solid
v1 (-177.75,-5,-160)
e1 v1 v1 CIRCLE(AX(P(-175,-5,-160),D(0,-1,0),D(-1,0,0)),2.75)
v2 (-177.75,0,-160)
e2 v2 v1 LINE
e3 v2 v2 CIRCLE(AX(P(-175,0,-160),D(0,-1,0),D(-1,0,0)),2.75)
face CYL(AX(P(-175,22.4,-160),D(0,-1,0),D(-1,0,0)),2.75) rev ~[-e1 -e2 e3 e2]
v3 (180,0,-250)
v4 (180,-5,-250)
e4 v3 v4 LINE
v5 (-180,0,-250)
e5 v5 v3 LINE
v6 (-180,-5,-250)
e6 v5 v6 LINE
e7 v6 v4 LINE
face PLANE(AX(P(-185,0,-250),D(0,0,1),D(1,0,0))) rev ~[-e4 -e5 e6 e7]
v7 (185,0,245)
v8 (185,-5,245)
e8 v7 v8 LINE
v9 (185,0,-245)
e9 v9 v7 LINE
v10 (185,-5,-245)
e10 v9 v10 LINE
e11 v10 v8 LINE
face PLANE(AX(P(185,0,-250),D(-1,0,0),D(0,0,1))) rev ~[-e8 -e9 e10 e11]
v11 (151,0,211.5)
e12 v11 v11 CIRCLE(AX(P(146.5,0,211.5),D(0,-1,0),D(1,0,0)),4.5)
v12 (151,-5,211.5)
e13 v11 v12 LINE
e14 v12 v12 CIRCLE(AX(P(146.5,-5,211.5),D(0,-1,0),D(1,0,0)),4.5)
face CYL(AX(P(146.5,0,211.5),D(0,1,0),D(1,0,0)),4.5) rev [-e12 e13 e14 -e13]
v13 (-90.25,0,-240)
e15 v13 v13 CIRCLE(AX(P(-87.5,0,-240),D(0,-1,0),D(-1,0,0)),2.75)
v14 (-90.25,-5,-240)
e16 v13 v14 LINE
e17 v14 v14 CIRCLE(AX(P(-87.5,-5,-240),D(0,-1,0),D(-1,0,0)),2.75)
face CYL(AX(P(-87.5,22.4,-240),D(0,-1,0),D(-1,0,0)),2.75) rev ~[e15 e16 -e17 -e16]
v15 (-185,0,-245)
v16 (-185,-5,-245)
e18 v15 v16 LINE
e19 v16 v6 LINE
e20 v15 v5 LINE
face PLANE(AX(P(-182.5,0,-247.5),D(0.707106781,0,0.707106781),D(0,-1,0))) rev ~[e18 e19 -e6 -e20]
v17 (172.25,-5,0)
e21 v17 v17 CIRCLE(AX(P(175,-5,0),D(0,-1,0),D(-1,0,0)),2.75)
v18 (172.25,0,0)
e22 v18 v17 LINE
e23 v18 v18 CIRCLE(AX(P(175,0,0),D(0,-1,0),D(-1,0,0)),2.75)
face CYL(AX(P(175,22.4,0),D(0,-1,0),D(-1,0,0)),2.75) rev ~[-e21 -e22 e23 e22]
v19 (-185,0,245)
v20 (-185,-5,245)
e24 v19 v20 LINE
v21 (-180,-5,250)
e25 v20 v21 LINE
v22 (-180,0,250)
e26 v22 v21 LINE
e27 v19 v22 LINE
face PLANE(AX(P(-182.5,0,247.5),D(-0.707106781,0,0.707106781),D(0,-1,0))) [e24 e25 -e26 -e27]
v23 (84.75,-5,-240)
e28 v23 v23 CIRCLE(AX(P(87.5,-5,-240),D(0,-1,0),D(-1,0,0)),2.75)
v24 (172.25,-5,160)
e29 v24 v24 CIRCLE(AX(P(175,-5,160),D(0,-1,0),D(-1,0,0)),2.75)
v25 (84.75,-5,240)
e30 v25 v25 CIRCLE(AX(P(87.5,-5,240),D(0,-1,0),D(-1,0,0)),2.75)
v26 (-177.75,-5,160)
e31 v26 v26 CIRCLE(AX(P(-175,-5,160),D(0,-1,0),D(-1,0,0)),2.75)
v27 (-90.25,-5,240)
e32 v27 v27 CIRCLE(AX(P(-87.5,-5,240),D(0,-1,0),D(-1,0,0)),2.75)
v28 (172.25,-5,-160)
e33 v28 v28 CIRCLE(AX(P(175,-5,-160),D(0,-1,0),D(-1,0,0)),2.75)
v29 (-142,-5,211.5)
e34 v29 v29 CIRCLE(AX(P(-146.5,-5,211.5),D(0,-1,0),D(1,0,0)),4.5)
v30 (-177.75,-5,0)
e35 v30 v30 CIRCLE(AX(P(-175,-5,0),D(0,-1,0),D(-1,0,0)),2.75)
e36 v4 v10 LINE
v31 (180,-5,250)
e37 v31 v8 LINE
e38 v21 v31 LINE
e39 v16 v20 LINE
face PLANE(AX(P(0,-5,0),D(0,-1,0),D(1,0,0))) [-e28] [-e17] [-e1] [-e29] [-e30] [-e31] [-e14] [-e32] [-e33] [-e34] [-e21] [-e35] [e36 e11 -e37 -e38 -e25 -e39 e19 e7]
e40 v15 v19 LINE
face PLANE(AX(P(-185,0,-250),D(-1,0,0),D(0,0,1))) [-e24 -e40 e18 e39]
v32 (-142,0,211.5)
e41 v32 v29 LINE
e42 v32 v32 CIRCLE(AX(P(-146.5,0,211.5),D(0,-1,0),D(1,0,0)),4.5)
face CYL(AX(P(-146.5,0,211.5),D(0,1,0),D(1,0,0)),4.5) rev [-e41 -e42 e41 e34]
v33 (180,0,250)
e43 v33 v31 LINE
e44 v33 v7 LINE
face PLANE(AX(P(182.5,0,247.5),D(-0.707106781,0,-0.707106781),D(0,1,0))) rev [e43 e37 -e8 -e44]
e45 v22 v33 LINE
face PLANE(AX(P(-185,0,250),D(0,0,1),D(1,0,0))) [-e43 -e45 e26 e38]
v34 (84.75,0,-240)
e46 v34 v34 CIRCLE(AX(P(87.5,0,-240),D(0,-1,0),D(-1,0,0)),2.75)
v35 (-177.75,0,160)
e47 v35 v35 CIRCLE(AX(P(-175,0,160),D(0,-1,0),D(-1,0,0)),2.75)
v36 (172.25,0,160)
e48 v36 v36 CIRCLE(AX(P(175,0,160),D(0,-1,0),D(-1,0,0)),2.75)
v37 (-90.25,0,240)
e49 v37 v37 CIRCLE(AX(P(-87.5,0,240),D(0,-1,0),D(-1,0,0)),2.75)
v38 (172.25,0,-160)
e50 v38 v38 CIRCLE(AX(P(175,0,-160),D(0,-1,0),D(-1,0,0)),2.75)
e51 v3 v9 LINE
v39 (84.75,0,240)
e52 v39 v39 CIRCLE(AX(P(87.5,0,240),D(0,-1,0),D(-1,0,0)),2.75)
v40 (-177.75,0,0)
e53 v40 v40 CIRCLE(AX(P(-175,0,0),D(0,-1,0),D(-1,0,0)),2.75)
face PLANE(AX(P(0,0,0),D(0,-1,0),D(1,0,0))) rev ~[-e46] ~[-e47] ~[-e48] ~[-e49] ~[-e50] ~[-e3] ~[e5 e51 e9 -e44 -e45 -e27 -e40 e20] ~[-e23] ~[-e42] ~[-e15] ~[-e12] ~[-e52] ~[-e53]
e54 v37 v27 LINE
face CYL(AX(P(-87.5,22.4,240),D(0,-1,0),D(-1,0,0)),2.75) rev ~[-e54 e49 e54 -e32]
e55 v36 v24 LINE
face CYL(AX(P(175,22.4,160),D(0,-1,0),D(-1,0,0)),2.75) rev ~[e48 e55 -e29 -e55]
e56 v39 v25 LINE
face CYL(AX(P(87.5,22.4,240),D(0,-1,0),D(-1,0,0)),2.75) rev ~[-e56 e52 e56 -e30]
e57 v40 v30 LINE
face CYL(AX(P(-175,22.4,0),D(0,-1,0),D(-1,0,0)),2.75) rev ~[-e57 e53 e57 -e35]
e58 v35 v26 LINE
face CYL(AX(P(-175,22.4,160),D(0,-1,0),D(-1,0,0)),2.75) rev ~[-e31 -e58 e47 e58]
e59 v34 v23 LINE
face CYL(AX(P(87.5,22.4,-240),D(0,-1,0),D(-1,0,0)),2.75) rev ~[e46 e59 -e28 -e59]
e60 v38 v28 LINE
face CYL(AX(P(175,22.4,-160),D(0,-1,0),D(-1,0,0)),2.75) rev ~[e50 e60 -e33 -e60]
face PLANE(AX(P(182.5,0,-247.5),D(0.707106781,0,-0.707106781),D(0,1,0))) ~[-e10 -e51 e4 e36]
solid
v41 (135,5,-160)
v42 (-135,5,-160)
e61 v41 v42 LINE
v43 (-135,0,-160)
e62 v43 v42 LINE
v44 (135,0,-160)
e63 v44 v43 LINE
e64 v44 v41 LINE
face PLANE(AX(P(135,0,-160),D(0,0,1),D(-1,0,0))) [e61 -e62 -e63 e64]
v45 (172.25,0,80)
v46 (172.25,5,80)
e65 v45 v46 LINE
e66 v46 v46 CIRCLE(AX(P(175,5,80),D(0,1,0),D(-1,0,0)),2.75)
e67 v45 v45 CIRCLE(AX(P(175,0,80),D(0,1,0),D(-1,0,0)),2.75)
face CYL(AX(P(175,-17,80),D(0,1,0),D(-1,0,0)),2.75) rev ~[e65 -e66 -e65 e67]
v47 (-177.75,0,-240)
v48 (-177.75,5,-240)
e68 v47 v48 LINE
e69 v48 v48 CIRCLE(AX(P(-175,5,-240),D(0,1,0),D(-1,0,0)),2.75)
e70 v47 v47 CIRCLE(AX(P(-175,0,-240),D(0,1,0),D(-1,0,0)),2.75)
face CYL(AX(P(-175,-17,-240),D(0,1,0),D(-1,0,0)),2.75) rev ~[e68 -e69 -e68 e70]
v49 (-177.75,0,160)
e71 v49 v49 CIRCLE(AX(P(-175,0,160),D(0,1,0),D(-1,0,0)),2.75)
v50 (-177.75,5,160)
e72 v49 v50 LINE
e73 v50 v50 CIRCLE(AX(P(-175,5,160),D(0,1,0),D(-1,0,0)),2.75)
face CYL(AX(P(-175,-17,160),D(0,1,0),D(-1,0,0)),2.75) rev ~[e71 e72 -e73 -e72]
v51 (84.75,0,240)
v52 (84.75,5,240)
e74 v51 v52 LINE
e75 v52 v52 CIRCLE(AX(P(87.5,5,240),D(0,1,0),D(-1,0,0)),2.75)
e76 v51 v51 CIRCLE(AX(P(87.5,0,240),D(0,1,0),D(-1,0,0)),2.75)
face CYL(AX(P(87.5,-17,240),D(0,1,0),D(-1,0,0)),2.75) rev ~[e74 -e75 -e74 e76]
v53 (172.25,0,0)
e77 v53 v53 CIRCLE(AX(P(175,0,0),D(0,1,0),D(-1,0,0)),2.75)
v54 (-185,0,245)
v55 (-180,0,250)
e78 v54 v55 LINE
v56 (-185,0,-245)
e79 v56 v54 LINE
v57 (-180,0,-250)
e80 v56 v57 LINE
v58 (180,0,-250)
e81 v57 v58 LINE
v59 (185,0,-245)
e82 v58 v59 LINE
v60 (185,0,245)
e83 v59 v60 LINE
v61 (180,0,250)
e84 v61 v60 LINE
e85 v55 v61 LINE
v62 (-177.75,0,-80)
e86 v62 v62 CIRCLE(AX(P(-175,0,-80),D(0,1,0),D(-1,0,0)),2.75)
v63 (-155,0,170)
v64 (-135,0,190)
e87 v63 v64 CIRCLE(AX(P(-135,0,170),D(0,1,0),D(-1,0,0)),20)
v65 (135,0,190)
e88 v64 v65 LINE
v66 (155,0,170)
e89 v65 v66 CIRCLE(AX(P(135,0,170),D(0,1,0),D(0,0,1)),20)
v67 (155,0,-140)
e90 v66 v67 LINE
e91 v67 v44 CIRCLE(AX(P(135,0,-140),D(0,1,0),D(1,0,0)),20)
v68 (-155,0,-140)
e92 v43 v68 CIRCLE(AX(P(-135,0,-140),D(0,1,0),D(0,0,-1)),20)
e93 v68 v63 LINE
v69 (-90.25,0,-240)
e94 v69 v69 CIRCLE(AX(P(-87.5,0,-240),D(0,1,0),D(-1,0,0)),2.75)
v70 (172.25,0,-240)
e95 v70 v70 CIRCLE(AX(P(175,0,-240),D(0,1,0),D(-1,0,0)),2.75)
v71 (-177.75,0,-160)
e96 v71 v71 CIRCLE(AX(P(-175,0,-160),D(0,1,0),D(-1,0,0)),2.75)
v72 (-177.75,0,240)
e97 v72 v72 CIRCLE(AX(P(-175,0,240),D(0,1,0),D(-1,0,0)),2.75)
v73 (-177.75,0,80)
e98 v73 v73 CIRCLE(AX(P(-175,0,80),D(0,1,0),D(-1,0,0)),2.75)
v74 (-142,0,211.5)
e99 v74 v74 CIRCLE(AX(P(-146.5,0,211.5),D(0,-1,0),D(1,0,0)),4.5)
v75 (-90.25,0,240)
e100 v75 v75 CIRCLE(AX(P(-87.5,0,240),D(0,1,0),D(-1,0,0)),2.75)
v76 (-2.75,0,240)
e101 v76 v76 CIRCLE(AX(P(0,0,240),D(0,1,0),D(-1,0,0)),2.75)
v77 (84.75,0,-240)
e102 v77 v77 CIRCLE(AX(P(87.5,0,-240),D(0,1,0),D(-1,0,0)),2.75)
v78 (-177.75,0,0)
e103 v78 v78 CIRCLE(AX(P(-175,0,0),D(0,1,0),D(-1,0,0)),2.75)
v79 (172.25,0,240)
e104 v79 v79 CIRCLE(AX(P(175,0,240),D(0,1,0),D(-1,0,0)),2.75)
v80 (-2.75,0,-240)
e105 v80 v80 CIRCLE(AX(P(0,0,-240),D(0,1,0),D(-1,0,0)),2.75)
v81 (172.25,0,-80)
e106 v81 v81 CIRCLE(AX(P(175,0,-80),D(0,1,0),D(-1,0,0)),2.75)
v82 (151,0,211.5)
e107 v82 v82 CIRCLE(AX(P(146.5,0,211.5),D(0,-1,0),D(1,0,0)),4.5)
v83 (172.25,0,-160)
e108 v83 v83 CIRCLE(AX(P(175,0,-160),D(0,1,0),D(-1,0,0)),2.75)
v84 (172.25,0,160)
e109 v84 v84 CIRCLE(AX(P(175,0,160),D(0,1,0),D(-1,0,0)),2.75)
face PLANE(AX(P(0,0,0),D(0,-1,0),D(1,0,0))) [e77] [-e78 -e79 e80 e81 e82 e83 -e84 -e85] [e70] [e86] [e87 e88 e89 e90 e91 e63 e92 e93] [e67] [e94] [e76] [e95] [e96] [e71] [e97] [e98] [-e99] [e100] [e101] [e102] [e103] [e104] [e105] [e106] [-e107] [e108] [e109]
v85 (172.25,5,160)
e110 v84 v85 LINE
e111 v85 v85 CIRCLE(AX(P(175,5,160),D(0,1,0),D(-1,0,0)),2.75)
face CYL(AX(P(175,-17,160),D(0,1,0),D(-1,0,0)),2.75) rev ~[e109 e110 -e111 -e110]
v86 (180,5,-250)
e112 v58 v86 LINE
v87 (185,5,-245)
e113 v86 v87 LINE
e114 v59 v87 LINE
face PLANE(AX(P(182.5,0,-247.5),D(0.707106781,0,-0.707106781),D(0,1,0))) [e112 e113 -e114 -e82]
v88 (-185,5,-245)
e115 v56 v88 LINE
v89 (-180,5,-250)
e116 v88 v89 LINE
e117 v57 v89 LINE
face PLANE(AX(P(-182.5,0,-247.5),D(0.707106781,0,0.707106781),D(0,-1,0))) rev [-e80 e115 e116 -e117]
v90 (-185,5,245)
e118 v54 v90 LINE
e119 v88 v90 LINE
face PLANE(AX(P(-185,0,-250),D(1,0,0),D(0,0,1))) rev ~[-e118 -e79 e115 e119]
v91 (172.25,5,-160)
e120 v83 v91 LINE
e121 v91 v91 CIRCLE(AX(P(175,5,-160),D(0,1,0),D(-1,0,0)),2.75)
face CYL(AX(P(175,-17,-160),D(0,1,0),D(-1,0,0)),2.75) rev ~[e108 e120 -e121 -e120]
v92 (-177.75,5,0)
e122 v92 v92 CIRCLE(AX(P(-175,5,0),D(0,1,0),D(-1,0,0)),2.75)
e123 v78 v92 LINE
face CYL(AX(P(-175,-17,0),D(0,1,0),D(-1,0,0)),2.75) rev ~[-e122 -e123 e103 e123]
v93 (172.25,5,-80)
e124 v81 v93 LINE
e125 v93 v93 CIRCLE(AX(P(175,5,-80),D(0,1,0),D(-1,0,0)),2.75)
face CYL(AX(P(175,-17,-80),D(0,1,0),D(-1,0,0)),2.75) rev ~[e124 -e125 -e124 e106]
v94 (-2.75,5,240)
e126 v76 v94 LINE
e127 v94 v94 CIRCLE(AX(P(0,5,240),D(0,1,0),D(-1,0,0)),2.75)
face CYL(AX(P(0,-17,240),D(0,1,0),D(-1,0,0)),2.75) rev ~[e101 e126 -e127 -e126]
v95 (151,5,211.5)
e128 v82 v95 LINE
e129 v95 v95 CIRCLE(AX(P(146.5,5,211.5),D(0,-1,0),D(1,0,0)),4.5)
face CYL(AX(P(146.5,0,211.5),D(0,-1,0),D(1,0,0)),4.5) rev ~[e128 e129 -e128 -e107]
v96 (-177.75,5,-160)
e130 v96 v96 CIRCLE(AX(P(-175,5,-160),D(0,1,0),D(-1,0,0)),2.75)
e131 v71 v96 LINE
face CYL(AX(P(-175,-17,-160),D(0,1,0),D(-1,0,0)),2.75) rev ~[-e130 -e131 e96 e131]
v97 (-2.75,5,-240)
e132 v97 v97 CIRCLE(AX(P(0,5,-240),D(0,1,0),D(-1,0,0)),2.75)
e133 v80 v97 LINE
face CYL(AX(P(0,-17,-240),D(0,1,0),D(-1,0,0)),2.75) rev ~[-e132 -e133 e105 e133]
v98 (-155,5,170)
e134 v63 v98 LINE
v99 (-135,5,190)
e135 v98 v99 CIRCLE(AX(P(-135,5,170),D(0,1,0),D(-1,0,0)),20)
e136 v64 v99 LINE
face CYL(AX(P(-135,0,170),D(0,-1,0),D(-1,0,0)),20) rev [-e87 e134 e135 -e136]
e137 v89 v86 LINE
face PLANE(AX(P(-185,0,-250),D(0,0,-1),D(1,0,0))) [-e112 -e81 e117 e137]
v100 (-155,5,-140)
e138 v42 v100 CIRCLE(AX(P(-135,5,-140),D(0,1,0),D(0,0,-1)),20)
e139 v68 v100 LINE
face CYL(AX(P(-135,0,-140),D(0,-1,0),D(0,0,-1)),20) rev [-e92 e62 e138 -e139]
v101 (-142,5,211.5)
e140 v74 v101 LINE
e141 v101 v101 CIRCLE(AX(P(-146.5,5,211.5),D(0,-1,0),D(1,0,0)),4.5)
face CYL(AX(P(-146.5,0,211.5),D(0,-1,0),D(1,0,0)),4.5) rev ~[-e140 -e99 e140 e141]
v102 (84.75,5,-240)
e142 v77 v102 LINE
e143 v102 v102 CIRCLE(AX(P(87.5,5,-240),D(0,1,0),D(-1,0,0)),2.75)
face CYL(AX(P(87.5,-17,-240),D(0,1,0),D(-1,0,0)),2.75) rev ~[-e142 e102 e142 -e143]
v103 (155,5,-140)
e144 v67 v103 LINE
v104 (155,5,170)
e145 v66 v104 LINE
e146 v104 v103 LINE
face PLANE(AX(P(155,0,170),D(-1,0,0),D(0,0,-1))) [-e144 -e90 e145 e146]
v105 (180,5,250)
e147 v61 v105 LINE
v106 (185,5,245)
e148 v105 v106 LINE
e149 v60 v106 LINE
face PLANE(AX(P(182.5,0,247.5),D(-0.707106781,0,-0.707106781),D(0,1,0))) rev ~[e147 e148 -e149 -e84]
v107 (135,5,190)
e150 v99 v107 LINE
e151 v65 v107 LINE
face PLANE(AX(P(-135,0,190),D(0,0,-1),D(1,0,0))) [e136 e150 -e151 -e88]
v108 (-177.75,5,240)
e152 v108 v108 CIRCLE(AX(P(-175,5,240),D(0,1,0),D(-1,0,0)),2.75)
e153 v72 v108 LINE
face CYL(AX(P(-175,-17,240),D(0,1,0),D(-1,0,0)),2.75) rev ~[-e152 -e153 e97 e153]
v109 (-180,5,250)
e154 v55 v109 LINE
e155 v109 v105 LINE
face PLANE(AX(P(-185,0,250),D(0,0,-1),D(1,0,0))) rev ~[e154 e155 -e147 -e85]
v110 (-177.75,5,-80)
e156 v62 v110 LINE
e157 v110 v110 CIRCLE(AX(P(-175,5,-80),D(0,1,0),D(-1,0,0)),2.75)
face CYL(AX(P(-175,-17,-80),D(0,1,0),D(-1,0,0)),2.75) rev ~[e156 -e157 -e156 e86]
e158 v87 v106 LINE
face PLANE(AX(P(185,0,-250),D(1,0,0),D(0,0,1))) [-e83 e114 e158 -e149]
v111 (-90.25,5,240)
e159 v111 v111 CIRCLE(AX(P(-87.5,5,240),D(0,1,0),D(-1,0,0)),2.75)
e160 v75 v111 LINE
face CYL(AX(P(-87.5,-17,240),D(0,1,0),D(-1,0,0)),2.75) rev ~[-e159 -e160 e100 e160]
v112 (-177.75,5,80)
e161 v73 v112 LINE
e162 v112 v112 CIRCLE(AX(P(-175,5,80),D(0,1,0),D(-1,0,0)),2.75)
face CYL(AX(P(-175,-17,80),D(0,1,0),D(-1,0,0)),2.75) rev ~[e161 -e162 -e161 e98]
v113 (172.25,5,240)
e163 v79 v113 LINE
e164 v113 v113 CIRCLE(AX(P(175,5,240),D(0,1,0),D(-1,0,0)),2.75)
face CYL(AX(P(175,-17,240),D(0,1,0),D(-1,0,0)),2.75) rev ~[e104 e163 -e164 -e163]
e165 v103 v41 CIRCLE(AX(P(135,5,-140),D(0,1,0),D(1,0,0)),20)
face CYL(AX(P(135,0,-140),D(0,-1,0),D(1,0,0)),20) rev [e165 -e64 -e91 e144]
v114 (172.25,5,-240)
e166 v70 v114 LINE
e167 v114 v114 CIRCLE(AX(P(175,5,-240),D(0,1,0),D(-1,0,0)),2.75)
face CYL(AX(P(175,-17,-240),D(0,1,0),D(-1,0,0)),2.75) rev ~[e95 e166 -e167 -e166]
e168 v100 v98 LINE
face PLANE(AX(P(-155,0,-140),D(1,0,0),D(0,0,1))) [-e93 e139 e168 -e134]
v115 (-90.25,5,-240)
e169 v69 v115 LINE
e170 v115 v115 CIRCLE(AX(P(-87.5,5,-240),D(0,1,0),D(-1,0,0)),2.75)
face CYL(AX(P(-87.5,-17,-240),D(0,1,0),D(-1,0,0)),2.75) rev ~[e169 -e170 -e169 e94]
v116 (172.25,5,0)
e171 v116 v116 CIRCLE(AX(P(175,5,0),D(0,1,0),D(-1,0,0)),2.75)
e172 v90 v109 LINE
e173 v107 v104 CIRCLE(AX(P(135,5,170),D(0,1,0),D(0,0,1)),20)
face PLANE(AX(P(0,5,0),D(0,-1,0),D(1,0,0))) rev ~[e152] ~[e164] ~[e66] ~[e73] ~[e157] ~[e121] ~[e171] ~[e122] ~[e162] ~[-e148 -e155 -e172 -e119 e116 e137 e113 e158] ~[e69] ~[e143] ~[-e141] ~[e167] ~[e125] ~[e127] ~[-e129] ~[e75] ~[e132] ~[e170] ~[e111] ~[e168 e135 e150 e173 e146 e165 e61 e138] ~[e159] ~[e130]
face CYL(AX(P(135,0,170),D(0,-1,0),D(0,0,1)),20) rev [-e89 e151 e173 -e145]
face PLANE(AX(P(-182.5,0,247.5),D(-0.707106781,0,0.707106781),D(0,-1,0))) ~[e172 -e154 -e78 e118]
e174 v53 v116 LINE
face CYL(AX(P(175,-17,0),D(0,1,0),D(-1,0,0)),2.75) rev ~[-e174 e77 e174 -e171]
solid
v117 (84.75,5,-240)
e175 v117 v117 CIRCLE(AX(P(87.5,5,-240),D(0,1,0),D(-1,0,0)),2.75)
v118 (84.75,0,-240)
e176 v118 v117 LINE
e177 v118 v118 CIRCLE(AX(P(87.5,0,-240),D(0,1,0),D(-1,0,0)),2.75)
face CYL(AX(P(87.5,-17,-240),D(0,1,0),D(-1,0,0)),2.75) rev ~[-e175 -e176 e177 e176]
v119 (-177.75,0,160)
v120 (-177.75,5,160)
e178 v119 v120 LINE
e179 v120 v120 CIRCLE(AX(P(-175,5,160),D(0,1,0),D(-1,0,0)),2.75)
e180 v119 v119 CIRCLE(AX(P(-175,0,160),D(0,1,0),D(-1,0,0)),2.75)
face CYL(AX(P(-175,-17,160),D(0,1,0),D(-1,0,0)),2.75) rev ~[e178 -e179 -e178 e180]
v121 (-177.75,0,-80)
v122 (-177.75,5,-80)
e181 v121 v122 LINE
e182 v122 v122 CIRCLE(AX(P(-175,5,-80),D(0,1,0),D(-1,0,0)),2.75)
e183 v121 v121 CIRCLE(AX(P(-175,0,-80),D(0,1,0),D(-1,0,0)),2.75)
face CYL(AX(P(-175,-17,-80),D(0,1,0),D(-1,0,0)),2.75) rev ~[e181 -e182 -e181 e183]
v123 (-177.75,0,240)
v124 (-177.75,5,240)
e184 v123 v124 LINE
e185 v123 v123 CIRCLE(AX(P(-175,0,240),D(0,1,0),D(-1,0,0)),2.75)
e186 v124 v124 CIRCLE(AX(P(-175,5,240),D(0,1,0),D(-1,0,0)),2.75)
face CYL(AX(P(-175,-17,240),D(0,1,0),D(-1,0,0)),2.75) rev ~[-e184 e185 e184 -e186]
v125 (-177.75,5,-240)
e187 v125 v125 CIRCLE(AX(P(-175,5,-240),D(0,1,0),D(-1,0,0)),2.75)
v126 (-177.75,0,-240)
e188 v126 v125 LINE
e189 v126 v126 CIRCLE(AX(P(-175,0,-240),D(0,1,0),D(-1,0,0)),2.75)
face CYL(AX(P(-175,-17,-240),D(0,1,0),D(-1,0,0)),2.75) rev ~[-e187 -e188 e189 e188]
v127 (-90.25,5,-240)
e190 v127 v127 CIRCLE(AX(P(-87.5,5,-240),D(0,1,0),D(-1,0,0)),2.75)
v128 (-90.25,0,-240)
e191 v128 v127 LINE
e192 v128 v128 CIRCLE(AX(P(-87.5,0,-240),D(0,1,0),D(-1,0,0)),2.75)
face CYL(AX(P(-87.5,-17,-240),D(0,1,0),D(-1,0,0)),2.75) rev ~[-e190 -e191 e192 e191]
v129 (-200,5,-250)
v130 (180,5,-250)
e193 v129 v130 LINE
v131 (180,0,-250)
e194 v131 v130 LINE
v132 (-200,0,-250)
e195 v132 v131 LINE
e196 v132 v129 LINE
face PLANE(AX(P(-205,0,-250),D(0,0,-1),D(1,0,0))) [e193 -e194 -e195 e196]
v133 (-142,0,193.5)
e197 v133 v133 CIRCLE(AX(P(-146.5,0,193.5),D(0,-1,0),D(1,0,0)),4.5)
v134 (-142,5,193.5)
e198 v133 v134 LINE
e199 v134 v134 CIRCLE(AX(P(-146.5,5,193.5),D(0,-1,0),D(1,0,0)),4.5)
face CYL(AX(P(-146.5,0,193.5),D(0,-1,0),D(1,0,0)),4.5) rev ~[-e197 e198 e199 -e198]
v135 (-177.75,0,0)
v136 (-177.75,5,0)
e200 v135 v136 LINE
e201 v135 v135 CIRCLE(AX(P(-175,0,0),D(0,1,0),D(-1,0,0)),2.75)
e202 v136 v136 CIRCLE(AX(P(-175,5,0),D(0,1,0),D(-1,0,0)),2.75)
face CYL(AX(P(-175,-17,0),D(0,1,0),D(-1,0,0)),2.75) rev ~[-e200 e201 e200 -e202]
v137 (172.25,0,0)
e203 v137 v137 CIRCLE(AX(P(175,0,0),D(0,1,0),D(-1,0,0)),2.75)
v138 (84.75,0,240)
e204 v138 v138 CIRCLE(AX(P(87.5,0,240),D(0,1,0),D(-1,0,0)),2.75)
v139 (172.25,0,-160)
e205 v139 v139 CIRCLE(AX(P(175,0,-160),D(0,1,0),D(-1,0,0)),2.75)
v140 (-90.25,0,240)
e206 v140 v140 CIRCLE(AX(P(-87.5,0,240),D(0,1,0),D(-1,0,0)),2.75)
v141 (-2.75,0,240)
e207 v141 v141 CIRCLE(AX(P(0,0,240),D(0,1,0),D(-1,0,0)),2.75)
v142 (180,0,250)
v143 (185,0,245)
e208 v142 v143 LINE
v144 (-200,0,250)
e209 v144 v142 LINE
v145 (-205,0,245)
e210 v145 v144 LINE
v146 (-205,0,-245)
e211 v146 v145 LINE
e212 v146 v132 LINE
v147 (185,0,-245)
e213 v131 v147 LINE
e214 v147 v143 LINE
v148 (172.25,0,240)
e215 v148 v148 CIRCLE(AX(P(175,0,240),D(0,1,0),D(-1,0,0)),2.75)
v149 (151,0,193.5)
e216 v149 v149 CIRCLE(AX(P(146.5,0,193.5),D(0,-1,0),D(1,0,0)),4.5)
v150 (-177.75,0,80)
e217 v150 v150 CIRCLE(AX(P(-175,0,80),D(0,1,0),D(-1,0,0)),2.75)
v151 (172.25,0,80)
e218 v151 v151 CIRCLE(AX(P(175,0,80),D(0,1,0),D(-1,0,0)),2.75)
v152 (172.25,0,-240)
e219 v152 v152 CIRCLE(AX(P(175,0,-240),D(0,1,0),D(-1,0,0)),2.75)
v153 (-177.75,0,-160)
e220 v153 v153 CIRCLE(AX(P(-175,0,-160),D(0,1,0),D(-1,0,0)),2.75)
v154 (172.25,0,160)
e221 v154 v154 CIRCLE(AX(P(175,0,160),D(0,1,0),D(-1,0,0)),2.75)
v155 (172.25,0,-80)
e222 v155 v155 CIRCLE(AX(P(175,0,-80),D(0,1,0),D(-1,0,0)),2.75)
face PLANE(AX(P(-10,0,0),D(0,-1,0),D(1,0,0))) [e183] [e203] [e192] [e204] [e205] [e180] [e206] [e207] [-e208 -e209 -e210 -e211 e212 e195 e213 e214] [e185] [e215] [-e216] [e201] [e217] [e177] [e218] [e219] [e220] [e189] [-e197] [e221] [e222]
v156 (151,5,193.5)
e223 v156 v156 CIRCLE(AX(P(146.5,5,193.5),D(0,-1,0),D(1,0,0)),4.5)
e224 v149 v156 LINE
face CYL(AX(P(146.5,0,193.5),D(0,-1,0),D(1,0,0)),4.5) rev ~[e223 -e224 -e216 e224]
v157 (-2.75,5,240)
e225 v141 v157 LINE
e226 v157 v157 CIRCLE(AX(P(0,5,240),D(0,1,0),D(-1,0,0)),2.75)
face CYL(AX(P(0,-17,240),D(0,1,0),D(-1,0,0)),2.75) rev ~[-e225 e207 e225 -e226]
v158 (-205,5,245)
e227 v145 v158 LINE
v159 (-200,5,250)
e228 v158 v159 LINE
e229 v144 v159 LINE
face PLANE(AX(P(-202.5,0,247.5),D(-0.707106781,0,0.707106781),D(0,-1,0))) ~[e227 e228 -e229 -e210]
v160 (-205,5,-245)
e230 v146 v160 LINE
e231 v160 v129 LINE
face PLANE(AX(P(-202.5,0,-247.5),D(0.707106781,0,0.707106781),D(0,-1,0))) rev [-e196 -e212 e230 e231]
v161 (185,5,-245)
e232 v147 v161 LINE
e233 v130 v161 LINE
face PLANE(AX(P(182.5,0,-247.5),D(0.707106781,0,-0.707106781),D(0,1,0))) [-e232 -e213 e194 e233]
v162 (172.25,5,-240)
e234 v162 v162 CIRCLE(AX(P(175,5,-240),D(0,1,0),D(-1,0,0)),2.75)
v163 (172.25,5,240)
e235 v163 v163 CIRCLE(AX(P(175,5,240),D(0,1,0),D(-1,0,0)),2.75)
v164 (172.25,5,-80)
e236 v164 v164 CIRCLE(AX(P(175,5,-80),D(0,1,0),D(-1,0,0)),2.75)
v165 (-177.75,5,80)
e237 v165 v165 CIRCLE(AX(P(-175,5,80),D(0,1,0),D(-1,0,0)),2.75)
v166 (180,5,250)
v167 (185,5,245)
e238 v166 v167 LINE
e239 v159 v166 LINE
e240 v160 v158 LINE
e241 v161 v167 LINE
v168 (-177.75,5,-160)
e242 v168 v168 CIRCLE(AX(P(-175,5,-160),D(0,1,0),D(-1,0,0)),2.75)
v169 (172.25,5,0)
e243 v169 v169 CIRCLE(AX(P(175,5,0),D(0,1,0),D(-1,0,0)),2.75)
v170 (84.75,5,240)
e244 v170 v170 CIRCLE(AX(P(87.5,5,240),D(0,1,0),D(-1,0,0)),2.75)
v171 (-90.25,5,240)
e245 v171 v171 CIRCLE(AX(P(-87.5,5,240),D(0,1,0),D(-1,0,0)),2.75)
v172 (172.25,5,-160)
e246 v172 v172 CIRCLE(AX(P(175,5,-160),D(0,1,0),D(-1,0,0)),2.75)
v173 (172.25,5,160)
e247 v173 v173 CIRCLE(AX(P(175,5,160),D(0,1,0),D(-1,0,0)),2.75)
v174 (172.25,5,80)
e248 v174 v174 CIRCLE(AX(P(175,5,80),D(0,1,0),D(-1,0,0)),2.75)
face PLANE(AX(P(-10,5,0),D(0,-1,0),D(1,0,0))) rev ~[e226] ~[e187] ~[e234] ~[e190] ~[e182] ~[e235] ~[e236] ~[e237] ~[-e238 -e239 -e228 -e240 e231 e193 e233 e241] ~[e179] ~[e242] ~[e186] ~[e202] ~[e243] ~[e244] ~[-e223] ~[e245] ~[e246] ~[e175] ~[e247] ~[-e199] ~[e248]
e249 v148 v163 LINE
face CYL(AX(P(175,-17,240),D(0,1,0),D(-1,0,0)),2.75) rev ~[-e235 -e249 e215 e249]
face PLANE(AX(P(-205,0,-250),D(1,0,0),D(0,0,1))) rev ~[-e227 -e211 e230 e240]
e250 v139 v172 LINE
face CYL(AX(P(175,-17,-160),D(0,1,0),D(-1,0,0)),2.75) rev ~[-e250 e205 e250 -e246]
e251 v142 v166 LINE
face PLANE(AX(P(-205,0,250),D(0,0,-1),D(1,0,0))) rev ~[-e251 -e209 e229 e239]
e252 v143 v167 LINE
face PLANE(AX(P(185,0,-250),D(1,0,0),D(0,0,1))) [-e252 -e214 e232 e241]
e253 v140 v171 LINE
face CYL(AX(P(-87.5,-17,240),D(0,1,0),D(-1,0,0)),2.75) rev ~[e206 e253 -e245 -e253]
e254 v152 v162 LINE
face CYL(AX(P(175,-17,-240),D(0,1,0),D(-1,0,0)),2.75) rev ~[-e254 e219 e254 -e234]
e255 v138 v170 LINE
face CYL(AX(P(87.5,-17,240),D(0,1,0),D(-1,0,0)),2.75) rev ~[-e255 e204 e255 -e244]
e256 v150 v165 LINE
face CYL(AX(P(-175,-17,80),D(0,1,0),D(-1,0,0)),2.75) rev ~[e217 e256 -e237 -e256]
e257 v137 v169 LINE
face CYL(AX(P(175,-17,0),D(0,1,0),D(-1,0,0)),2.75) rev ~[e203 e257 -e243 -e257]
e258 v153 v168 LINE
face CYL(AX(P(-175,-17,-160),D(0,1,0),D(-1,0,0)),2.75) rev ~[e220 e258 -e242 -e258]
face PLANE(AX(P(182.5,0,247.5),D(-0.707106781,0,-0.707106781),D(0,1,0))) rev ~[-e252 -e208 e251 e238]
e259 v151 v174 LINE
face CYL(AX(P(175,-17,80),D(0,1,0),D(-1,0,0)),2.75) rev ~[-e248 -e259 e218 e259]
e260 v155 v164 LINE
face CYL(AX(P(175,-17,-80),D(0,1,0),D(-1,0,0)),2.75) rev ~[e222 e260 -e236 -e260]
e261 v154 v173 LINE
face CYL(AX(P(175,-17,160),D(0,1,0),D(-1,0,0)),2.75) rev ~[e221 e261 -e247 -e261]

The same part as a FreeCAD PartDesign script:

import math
import FreeCAD as App
import Part
import Sketcher
from FreeCAD import Vector


def edges_at(feature, points):
    """Names of the edges that pass closest to the given points."""
    edges = feature.Shape.Edges
    near = lambda p: min(range(len(edges)), key=lambda i: edges[i].distToShape(Part.Vertex(*p))[0])
    return sorted({f"Edge{near(p) + 1}" for p in points})

doc = App.newDocument("Part")
body = doc.addObject("PartDesign::Body", "Body")

# Sketch on XZ plane
sketch1 = body.newObject("Sketcher::SketchObject", "Sketch")
sketch1.AttachmentSupport = (doc.getObject("XZ_Plane"), [""])
sketch1.MapMode = "FlatFace"
sketch1.addGeometry(Part.LineSegment(Vector(-205, 250, 0), Vector(-205, -250, 0)), False)
sketch1.addGeometry(Part.LineSegment(Vector(-205, -250, 0), Vector(185, -250, 0)), False)
sketch1.addGeometry(Part.LineSegment(Vector(185, -250, 0), Vector(185, 250, 0)), False)
sketch1.addGeometry(Part.LineSegment(Vector(185, 250, 0), Vector(-205, 250, 0)), False)
sketch1.addGeometry(Part.Circle(Vector(-146.5, 193.5, 0), Vector(0, 0, 1), 4.5), False)
sketch1.addGeometry(Part.Circle(Vector(146.5, 193.5, 0), Vector(0, 0, 1), 4.5), False)
sketch1.addConstraint(Sketcher.Constraint("Coincident", 0, 2, 1, 1))
sketch1.addConstraint(Sketcher.Constraint("Coincident", 1, 2, 2, 1))
sketch1.addConstraint(Sketcher.Constraint("Coincident", 2, 2, 3, 1))
sketch1.addConstraint(Sketcher.Constraint("Coincident", 3, 2, 0, 1))
sketch1.addConstraint(Sketcher.Constraint("Vertical", 0))
sketch1.addConstraint(Sketcher.Constraint("Horizontal", 1))
sketch1.addConstraint(Sketcher.Constraint("Vertical", 2))
sketch1.addConstraint(Sketcher.Constraint("Horizontal", 3))
sketch1.addConstraint(Sketcher.Constraint("Equal", 4, 5))
sketch1.addConstraint(Sketcher.Constraint("Symmetric", 4, 3, 5, 3, -2))
sketch1.addConstraint(Sketcher.Constraint("Diameter", 4, 9.0))
sketch1.addConstraint(Sketcher.Constraint("DistanceX", 1, 1, 1, 2, 390.0))
sketch1.addConstraint(Sketcher.Constraint("DistanceY", 0, 2, 0, 1, 500.0))
sketch1.addConstraint(Sketcher.Constraint("DistanceX", 0, 2, -1, 1, 205.0))
sketch1.addConstraint(Sketcher.Constraint("DistanceY", 0, 2, -1, 1, 250.0))
sketch1.addConstraint(Sketcher.Constraint("DistanceX", 4, 3, 5, 3, 293.0))
sketch1.addConstraint(Sketcher.Constraint("DistanceY", -1, 1, 4, 3, 193.5))
pad1 = body.newObject("PartDesign::Pad", "Pad")
pad1.Profile = sketch1
pad1.Length = 5
pad1.Reversed = True

# Sketch on XZ plane
sketch2 = body.newObject("Sketcher::SketchObject", "Sketch001")
sketch2.AttachmentSupport = (doc.getObject("XZ_Plane"), [""])
sketch2.MapMode = "FlatFace"
sketch2.addGeometry(Part.Circle(Vector(-175, 240, 0), Vector(0, 0, 1), 2.8), False)
sketch2.addGeometry(Part.Circle(Vector(-175, 160, 0), Vector(0, 0, 1), 2.8), False)
sketch2.addGeometry(Part.Circle(Vector(-175, 80, 0), Vector(0, 0, 1), 2.8), False)
sketch2.addGeometry(Part.Circle(Vector(-175, -80, 0), Vector(0, 0, 1), 2.8), False)
sketch2.addGeometry(Part.Circle(Vector(-175, -160, 0), Vector(0, 0, 1), 2.8), False)
sketch2.addGeometry(Part.Circle(Vector(-175, -240, 0), Vector(0, 0, 1), 2.8), False)
sketch2.addGeometry(Part.Circle(Vector(-87.5, -240, 0), Vector(0, 0, 1), 2.8), False)
sketch2.addGeometry(Part.Circle(Vector(87.5, -240, 0), Vector(0, 0, 1), 2.8), False)
sketch2.addGeometry(Part.Circle(Vector(175, -240, 0), Vector(0, 0, 1), 2.8), False)
sketch2.addGeometry(Part.Circle(Vector(175, -160, 0), Vector(0, 0, 1), 2.8), False)
sketch2.addGeometry(Part.Circle(Vector(175, -80, 0), Vector(0, 0, 1), 2.8), False)
sketch2.addGeometry(Part.Circle(Vector(175, 80, 0), Vector(0, 0, 1), 2.8), False)
sketch2.addGeometry(Part.Circle(Vector(175, 160, 0), Vector(0, 0, 1), 2.8), False)
sketch2.addGeometry(Part.Circle(Vector(175, 240, 0), Vector(0, 0, 1), 2.8), False)
sketch2.addGeometry(Part.Circle(Vector(87.5, 240, 0), Vector(0, 0, 1), 2.8), False)
sketch2.addGeometry(Part.Circle(Vector(0, 240, 0), Vector(0, 0, 1), 2.8), False)
sketch2.addGeometry(Part.Circle(Vector(-87.5, 240, 0), Vector(0, 0, 1), 2.8), False)
sketch2.addGeometry(Part.Circle(Vector(-175, 0, 0), Vector(0, 0, 1), 2.8), False)
sketch2.addGeometry(Part.Circle(Vector(175, 0, 0), Vector(0, 0, 1), 2.8), False)
sketch2.addConstraint(Sketcher.Constraint("Equal", 0, 1))
sketch2.addConstraint(Sketcher.Constraint("Equal", 1, 2))
sketch2.addConstraint(Sketcher.Constraint("Equal", 2, 3))
sketch2.addConstraint(Sketcher.Constraint("Equal", 3, 4))
sketch2.addConstraint(Sketcher.Constraint("Equal", 4, 5))
sketch2.addConstraint(Sketcher.Constraint("Equal", 5, 6))
sketch2.addConstraint(Sketcher.Constraint("Equal", 6, 7))
sketch2.addConstraint(Sketcher.Constraint("Equal", 7, 8))
sketch2.addConstraint(Sketcher.Constraint("Equal", 8, 9))
sketch2.addConstraint(Sketcher.Constraint("Equal", 9, 10))
sketch2.addConstraint(Sketcher.Constraint("Equal", 10, 11))
sketch2.addConstraint(Sketcher.Constraint("Equal", 11, 12))
sketch2.addConstraint(Sketcher.Constraint("Equal", 12, 13))
sketch2.addConstraint(Sketcher.Constraint("Equal", 13, 14))
sketch2.addConstraint(Sketcher.Constraint("Equal", 14, 15))
sketch2.addConstraint(Sketcher.Constraint("Equal", 15, 16))
sketch2.addConstraint(Sketcher.Constraint("Equal", 16, 17))
sketch2.addConstraint(Sketcher.Constraint("Equal", 17, 18))
sketch2.addConstraint(Sketcher.Constraint("Symmetric", 0, 3, 8, 3, -1, 1))
sketch2.addConstraint(Sketcher.Constraint("Symmetric", 1, 3, 9, 3, -1, 1))
sketch2.addConstraint(Sketcher.Constraint("Symmetric", 2, 3, 10, 3, -1, 1))
sketch2.addConstraint(Sketcher.Constraint("Symmetric", 3, 3, 11, 3, -1, 1))
sketch2.addConstraint(Sketcher.Constraint("Symmetric", 4, 3, 12, 3, -1, 1))
sketch2.addConstraint(Sketcher.Constraint("Symmetric", 5, 3, 13, 3, -1, 1))
sketch2.addConstraint(Sketcher.Constraint("Symmetric", 6, 3, 14, 3, -1, 1))
sketch2.addConstraint(Sketcher.Constraint("Symmetric", 7, 3, 16, 3, -1, 1))
sketch2.addConstraint(Sketcher.Constraint("Symmetric", 17, 3, 18, 3, -1, 1))
sketch2.addConstraint(Sketcher.Constraint("Symmetric", 6, 3, 7, 3, -2))
sketch2.addConstraint(Sketcher.Constraint("Symmetric", 5, 3, 8, 3, -2))
sketch2.addConstraint(Sketcher.Constraint("Symmetric", 4, 3, 9, 3, -2))
sketch2.addConstraint(Sketcher.Constraint("Symmetric", 3, 3, 10, 3, -2))
sketch2.addConstraint(Sketcher.Constraint("PointOnObject", 15, 3, -2))
sketch2.addConstraint(Sketcher.Constraint("PointOnObject", 17, 3, -1))
sketch2.addConstraint(Sketcher.Constraint("Horizontal", 5, 3, 6, 3))
sketch2.addConstraint(Sketcher.Constraint("Horizontal", 14, 3, 15, 3))
sketch2.addConstraint(Sketcher.Constraint("Vertical", 0, 3, 1, 3))
sketch2.addConstraint(Sketcher.Constraint("Vertical", 1, 3, 2, 3))
sketch2.addConstraint(Sketcher.Constraint("Vertical", 5, 3, 17, 3))
sketch2.addConstraint(Sketcher.Constraint("Diameter", 0, 5.5))
sketch2.addConstraint(Sketcher.Constraint("DistanceX", 0, 3, -1, 1, 175.0))
sketch2.addConstraint(Sketcher.Constraint("DistanceY", -1, 1, 0, 3, 240.0))
sketch2.addConstraint(Sketcher.Constraint("DistanceY", -1, 1, 1, 3, 160.0))
sketch2.addConstraint(Sketcher.Constraint("DistanceY", -1, 1, 2, 3, 80.0))
sketch2.addConstraint(Sketcher.Constraint("DistanceX", 6, 3, 7, 3, 175.0))
doc.recompute()
hole = body.newObject("PartDesign::Hole", "Hole")
hole.Profile = sketch2
hole.ThreadType = "None"
hole.Diameter = 5.5
hole.DepthType = "Dimension"
hole.Depth = 17
hole.DrillPoint = "Angled"
hole.DrillPointAngle = 118
doc.recompute()

chamfer = body.newObject("PartDesign::Chamfer", "Chamfer")
chamfer.Base = (hole, edges_at(hole, [
    (-205, 2.5, 250),
    (185, 2.5, 250),
    (185, 2.5, -250),
    (-205, 2.5, -250),
]))
chamfer.Size = 5
body2 = doc.addObject("PartDesign::Body", "Body001")

# Sketch on XZ plane
sketch3 = body2.newObject("Sketcher::SketchObject", "Sketch002")
sketch3.AttachmentSupport = (doc.getObject("XZ_Plane001"), [""])
sketch3.MapMode = "FlatFace"
sketch3.addGeometry(Part.LineSegment(Vector(-185, 250, 0), Vector(-185, -250, 0)), False)
sketch3.addGeometry(Part.LineSegment(Vector(-185, -250, 0), Vector(185, -250, 0)), False)
sketch3.addGeometry(Part.LineSegment(Vector(185, -250, 0), Vector(185, 250, 0)), False)
sketch3.addGeometry(Part.LineSegment(Vector(185, 250, 0), Vector(-185, 250, 0)), False)
sketch3.addGeometry(Part.LineSegment(Vector(-155, -140, 0), Vector(-155, 170, 0)), False)
sketch3.addGeometry(Part.ArcOfCircle(Part.Circle(Vector(-135, 170, 0), Vector(0, 0, 1), 20), math.radians(90), math.radians(180)), False)
sketch3.addGeometry(Part.LineSegment(Vector(-135, 190, 0), Vector(135, 190, 0)), False)
sketch3.addGeometry(Part.ArcOfCircle(Part.Circle(Vector(135, 170, 0), Vector(0, 0, 1), 20), math.radians(0), math.radians(90)), False)
sketch3.addGeometry(Part.LineSegment(Vector(155, 170, 0), Vector(155, -140, 0)), False)
sketch3.addGeometry(Part.ArcOfCircle(Part.Circle(Vector(135, -140, 0), Vector(0, 0, 1), 20), math.radians(-90), math.radians(0)), False)
sketch3.addGeometry(Part.LineSegment(Vector(135, -160, 0), Vector(-135, -160, 0)), False)
sketch3.addGeometry(Part.ArcOfCircle(Part.Circle(Vector(-135, -140, 0), Vector(0, 0, 1), 20), math.radians(180), math.radians(270)), False)
sketch3.addGeometry(Part.Circle(Vector(-146.5, 211.5, 0), Vector(0, 0, 1), 4.5), False)
sketch3.addGeometry(Part.Circle(Vector(146.5, 211.5, 0), Vector(0, 0, 1), 4.5), False)
sketch3.addConstraint(Sketcher.Constraint("Coincident", 0, 2, 1, 1))
sketch3.addConstraint(Sketcher.Constraint("Coincident", 1, 2, 2, 1))
sketch3.addConstraint(Sketcher.Constraint("Coincident", 2, 2, 3, 1))
sketch3.addConstraint(Sketcher.Constraint("Coincident", 3, 2, 0, 1))
sketch3.addConstraint(Sketcher.Constraint("Tangent", 4, 2, 5, 2))
sketch3.addConstraint(Sketcher.Constraint("Tangent", 5, 1, 6, 1))
sketch3.addConstraint(Sketcher.Constraint("Tangent", 6, 2, 7, 2))
sketch3.addConstraint(Sketcher.Constraint("Tangent", 7, 1, 8, 1))
sketch3.addConstraint(Sketcher.Constraint("Tangent", 8, 2, 9, 2))
sketch3.addConstraint(Sketcher.Constraint("Tangent", 9, 1, 10, 1))
sketch3.addConstraint(Sketcher.Constraint("Tangent", 10, 2, 11, 2))
sketch3.addConstraint(Sketcher.Constraint("Tangent", 11, 1, 4, 1))
sketch3.addConstraint(Sketcher.Constraint("Vertical", 0))
sketch3.addConstraint(Sketcher.Constraint("Horizontal", 1))
sketch3.addConstraint(Sketcher.Constraint("Vertical", 2))
sketch3.addConstraint(Sketcher.Constraint("Horizontal", 3))
sketch3.addConstraint(Sketcher.Constraint("Vertical", 4))
sketch3.addConstraint(Sketcher.Constraint("Horizontal", 6))
sketch3.addConstraint(Sketcher.Constraint("Vertical", 8))
sketch3.addConstraint(Sketcher.Constraint("Horizontal", 10))
sketch3.addConstraint(Sketcher.Constraint("Equal", 5, 7))
sketch3.addConstraint(Sketcher.Constraint("Equal", 7, 9))
sketch3.addConstraint(Sketcher.Constraint("Equal", 9, 11))
sketch3.addConstraint(Sketcher.Constraint("Equal", 12, 13))
sketch3.addConstraint(Sketcher.Constraint("Symmetric", 0, 2, 2, 2, -1, 1))
sketch3.addConstraint(Sketcher.Constraint("Symmetric", 12, 3, 13, 3, -2))
sketch3.addConstraint(Sketcher.Constraint("Diameter", 12, 9.0))
sketch3.addConstraint(Sketcher.Constraint("Radius", 5, 20.0))
sketch3.addConstraint(Sketcher.Constraint("DistanceX", 1, 1, 1, 2, 370.0))
sketch3.addConstraint(Sketcher.Constraint("DistanceX", 6, 1, 6, 2, 270.0))
sketch3.addConstraint(Sketcher.Constraint("DistanceY", 0, 2, 0, 1, 500.0))
sketch3.addConstraint(Sketcher.Constraint("DistanceY", 4, 1, 4, 2, 310.0))
sketch3.addConstraint(Sketcher.Constraint("DistanceX", 5, 3, -1, 1, 135.0))
sketch3.addConstraint(Sketcher.Constraint("DistanceY", -1, 1, 5, 3, 170.0))
sketch3.addConstraint(Sketcher.Constraint("DistanceX", 12, 3, 13, 3, 293.0))
sketch3.addConstraint(Sketcher.Constraint("DistanceY", -1, 1, 12, 3, 211.5))
pad2 = body2.newObject("PartDesign::Pad", "Pad001")
pad2.Profile = sketch3
pad2.Length = 5
pad2.Reversed = True

# Sketch on XZ plane
sketch4 = body2.newObject("Sketcher::SketchObject", "Sketch003")
sketch4.AttachmentSupport = (doc.getObject("XZ_Plane001"), [""])
sketch4.MapMode = "FlatFace"
sketch4.addGeometry(Part.Circle(Vector(175, 80, 0), Vector(0, 0, 1), 2.8), False)
sketch4.addGeometry(Part.Circle(Vector(-87.5, -240, 0), Vector(0, 0, 1), 2.8), False)
sketch4.addGeometry(Part.Circle(Vector(175, 240, 0), Vector(0, 0, 1), 2.8), False)
sketch4.addGeometry(Part.Circle(Vector(-175, -160, 0), Vector(0, 0, 1), 2.8), False)
sketch4.addGeometry(Part.Circle(Vector(175, -160, 0), Vector(0, 0, 1), 2.8), False)
sketch4.addGeometry(Part.Circle(Vector(87.5, -240, 0), Vector(0, 0, 1), 2.8), False)
sketch4.addGeometry(Part.Circle(Vector(0, 240, 0), Vector(0, 0, 1), 2.8), False)
sketch4.addGeometry(Part.Circle(Vector(175, -240, 0), Vector(0, 0, 1), 2.8), False)
sketch4.addGeometry(Part.Circle(Vector(-175, -240, 0), Vector(0, 0, 1), 2.8), False)
sketch4.addGeometry(Part.Circle(Vector(175, -80, 0), Vector(0, 0, 1), 2.8), False)
sketch4.addGeometry(Part.Circle(Vector(-175, 80, 0), Vector(0, 0, 1), 2.8), False)
sketch4.addGeometry(Part.Circle(Vector(87.5, 240, 0), Vector(0, 0, 1), 2.8), False)
sketch4.addGeometry(Part.Circle(Vector(175, 160, 0), Vector(0, 0, 1), 2.8), False)
sketch4.addGeometry(Part.Circle(Vector(-175, -80, 0), Vector(0, 0, 1), 2.8), False)
sketch4.addGeometry(Part.Circle(Vector(-87.5, 240, 0), Vector(0, 0, 1), 2.8), False)
sketch4.addGeometry(Part.Circle(Vector(-175, 240, 0), Vector(0, 0, 1), 2.8), False)
sketch4.addGeometry(Part.Circle(Vector(175, 0, 0), Vector(0, 0, 1), 2.8), False)
sketch4.addGeometry(Part.Circle(Vector(-175, 160, 0), Vector(0, 0, 1), 2.8), False)
sketch4.addGeometry(Part.Circle(Vector(-175, 0, 0), Vector(0, 0, 1), 2.8), False)
sketch4.addGeometry(Part.Circle(Vector(0, -240, 0), Vector(0, 0, 1), 2.8), False)
sketch4.addConstraint(Sketcher.Constraint("Equal", 0, 1))
sketch4.addConstraint(Sketcher.Constraint("Equal", 1, 2))
sketch4.addConstraint(Sketcher.Constraint("Equal", 2, 3))
sketch4.addConstraint(Sketcher.Constraint("Equal", 3, 4))
sketch4.addConstraint(Sketcher.Constraint("Equal", 4, 5))
sketch4.addConstraint(Sketcher.Constraint("Equal", 5, 6))
sketch4.addConstraint(Sketcher.Constraint("Equal", 6, 7))
sketch4.addConstraint(Sketcher.Constraint("Equal", 7, 8))
sketch4.addConstraint(Sketcher.Constraint("Equal", 8, 9))
sketch4.addConstraint(Sketcher.Constraint("Equal", 9, 10))
sketch4.addConstraint(Sketcher.Constraint("Equal", 10, 11))
sketch4.addConstraint(Sketcher.Constraint("Equal", 11, 12))
sketch4.addConstraint(Sketcher.Constraint("Equal", 12, 13))
sketch4.addConstraint(Sketcher.Constraint("Equal", 13, 14))
sketch4.addConstraint(Sketcher.Constraint("Equal", 14, 15))
sketch4.addConstraint(Sketcher.Constraint("Equal", 15, 16))
sketch4.addConstraint(Sketcher.Constraint("Equal", 16, 17))
sketch4.addConstraint(Sketcher.Constraint("Equal", 17, 18))
sketch4.addConstraint(Sketcher.Constraint("Equal", 18, 19))
sketch4.addConstraint(Sketcher.Constraint("Symmetric", 2, 3, 8, 3, -1, 1))
sketch4.addConstraint(Sketcher.Constraint("Symmetric", 9, 3, 10, 3, -1, 1))
sketch4.addConstraint(Sketcher.Constraint("Symmetric", 1, 3, 11, 3, -1, 1))
sketch4.addConstraint(Sketcher.Constraint("Symmetric", 3, 3, 12, 3, -1, 1))
sketch4.addConstraint(Sketcher.Constraint("Symmetric", 0, 3, 13, 3, -1, 1))
sketch4.addConstraint(Sketcher.Constraint("Symmetric", 5, 3, 14, 3, -1, 1))
sketch4.addConstraint(Sketcher.Constraint("Symmetric", 7, 3, 15, 3, -1, 1))
sketch4.addConstraint(Sketcher.Constraint("Symmetric", 4, 3, 17, 3, -1, 1))
sketch4.addConstraint(Sketcher.Constraint("Symmetric", 16, 3, 18, 3, -1, 1))
sketch4.addConstraint(Sketcher.Constraint("Symmetric", 6, 3, 19, 3, -1, 1))
sketch4.addConstraint(Sketcher.Constraint("Symmetric", 3, 3, 4, 3, -2))
sketch4.addConstraint(Sketcher.Constraint("Symmetric", 1, 3, 5, 3, -2))
sketch4.addConstraint(Sketcher.Constraint("Symmetric", 7, 3, 8, 3, -2))
sketch4.addConstraint(Sketcher.Constraint("Symmetric", 0, 3, 10, 3, -2))
sketch4.addConstraint(Sketcher.Constraint("PointOnObject", 6, 3, -2))
sketch4.addConstraint(Sketcher.Constraint("PointOnObject", 16, 3, -1))
sketch4.addConstraint(Sketcher.Constraint("Horizontal", 2, 3, 6, 3))
sketch4.addConstraint(Sketcher.Constraint("Horizontal", 5, 3, 7, 3))
sketch4.addConstraint(Sketcher.Constraint("Vertical", 0, 3, 2, 3))
sketch4.addConstraint(Sketcher.Constraint("Vertical", 2, 3, 4, 3))
sketch4.addConstraint(Sketcher.Constraint("Vertical", 12, 3, 16, 3))
sketch4.addConstraint(Sketcher.Constraint("Diameter", 0, 5.5))
sketch4.addConstraint(Sketcher.Constraint("DistanceX", -1, 1, 0, 3, 175.0))
sketch4.addConstraint(Sketcher.Constraint("DistanceY", -1, 1, 0, 3, 80.0))
sketch4.addConstraint(Sketcher.Constraint("DistanceY", 1, 3, -1, 1, 240.0))
sketch4.addConstraint(Sketcher.Constraint("DistanceY", 3, 3, -1, 1, 160.0))
sketch4.addConstraint(Sketcher.Constraint("DistanceX", 1, 3, 5, 3, 175.0))
doc.recompute()
hole2 = body2.newObject("PartDesign::Hole", "Hole001")
hole2.Profile = sketch4
hole2.ThreadType = "None"
hole2.Diameter = 5.5
hole2.DepthType = "Dimension"
hole2.Depth = 17
hole2.DrillPoint = "Angled"
hole2.DrillPointAngle = 118
doc.recompute()

chamfer2 = body2.newObject("PartDesign::Chamfer", "Chamfer001")
chamfer2.Base = (hole2, edges_at(hole2, [
    (-185, 2.5, -250),
    (185, 2.5, -250),
    (185, 2.5, 250),
    (-185, 2.5, 250),
]))
chamfer2.Size = 5
body3 = doc.addObject("PartDesign::Body", "Body002")

# Sketch on XZ plane
sketch5 = body3.newObject("Sketcher::SketchObject", "Sketch004")
sketch5.AttachmentSupport = (doc.getObject("XZ_Plane002"), [""])
sketch5.MapMode = "FlatFace"
sketch5.addGeometry(Part.LineSegment(Vector(-185, 250, 0), Vector(-185, -250, 0)), False)
sketch5.addGeometry(Part.LineSegment(Vector(-185, -250, 0), Vector(185, -250, 0)), False)
sketch5.addGeometry(Part.LineSegment(Vector(185, -250, 0), Vector(185, 250, 0)), False)
sketch5.addGeometry(Part.LineSegment(Vector(185, 250, 0), Vector(-185, 250, 0)), False)
sketch5.addGeometry(Part.Circle(Vector(-146.5, 211.5, 0), Vector(0, 0, 1), 4.5), False)
sketch5.addGeometry(Part.Circle(Vector(146.5, 211.5, 0), Vector(0, 0, 1), 4.5), False)
sketch5.addConstraint(Sketcher.Constraint("Coincident", 0, 2, 1, 1))
sketch5.addConstraint(Sketcher.Constraint("Coincident", 1, 2, 2, 1))
sketch5.addConstraint(Sketcher.Constraint("Coincident", 2, 2, 3, 1))
sketch5.addConstraint(Sketcher.Constraint("Coincident", 3, 2, 0, 1))
sketch5.addConstraint(Sketcher.Constraint("Vertical", 0))
sketch5.addConstraint(Sketcher.Constraint("Horizontal", 1))
sketch5.addConstraint(Sketcher.Constraint("Vertical", 2))
sketch5.addConstraint(Sketcher.Constraint("Horizontal", 3))
sketch5.addConstraint(Sketcher.Constraint("Equal", 4, 5))
sketch5.addConstraint(Sketcher.Constraint("Symmetric", 0, 2, 2, 2, -1, 1))
sketch5.addConstraint(Sketcher.Constraint("Symmetric", 4, 3, 5, 3, -2))
sketch5.addConstraint(Sketcher.Constraint("Diameter", 4, 9.0))
sketch5.addConstraint(Sketcher.Constraint("DistanceX", 1, 1, 1, 2, 370.0))
sketch5.addConstraint(Sketcher.Constraint("DistanceY", 0, 2, 0, 1, 500.0))
sketch5.addConstraint(Sketcher.Constraint("DistanceX", 4, 3, 5, 3, 293.0))
sketch5.addConstraint(Sketcher.Constraint("DistanceY", -1, 1, 4, 3, 211.5))
pad3 = body3.newObject("PartDesign::Pad", "Pad002")
pad3.Profile = sketch5
pad3.Length = 5

# Sketch on XZ plane
sketch6 = body3.newObject("Sketcher::SketchObject", "Sketch005")
sketch6.AttachmentSupport = (doc.getObject("XZ_Plane002"), [""])
sketch6.MapMode = "FlatFace"
sketch6.addGeometry(Part.Circle(Vector(-175, 160, 0), Vector(0, 0, 1), 2.8), False)
sketch6.addGeometry(Part.Circle(Vector(-87.5, 240, 0), Vector(0, 0, 1), 2.8), False)
sketch6.addGeometry(Part.Circle(Vector(87.5, 240, 0), Vector(0, 0, 1), 2.8), False)
sketch6.addGeometry(Part.Circle(Vector(175, 160, 0), Vector(0, 0, 1), 2.8), False)
sketch6.addGeometry(Part.Circle(Vector(-175, -160, 0), Vector(0, 0, 1), 2.8), False)
sketch6.addGeometry(Part.Circle(Vector(-87.5, -240, 0), Vector(0, 0, 1), 2.8), False)
sketch6.addGeometry(Part.Circle(Vector(87.5, -240, 0), Vector(0, 0, 1), 2.8), False)
sketch6.addGeometry(Part.Circle(Vector(175, -160, 0), Vector(0, 0, 1), 2.8), False)
sketch6.addGeometry(Part.Circle(Vector(-175, 0, 0), Vector(0, 0, 1), 2.8), False)
sketch6.addGeometry(Part.Circle(Vector(175, 0, 0), Vector(0, 0, 1), 2.8), False)
sketch6.addConstraint(Sketcher.Constraint("Equal", 0, 1))
sketch6.addConstraint(Sketcher.Constraint("Equal", 1, 2))
sketch6.addConstraint(Sketcher.Constraint("Equal", 2, 3))
sketch6.addConstraint(Sketcher.Constraint("Equal", 3, 4))
sketch6.addConstraint(Sketcher.Constraint("Equal", 4, 5))
sketch6.addConstraint(Sketcher.Constraint("Equal", 5, 6))
sketch6.addConstraint(Sketcher.Constraint("Equal", 6, 7))
sketch6.addConstraint(Sketcher.Constraint("Equal", 7, 8))
sketch6.addConstraint(Sketcher.Constraint("Equal", 8, 9))
sketch6.addConstraint(Sketcher.Constraint("Symmetric", 3, 3, 4, 3, -1, 1))
sketch6.addConstraint(Sketcher.Constraint("Symmetric", 2, 3, 5, 3, -1, 1))
sketch6.addConstraint(Sketcher.Constraint("Symmetric", 1, 3, 6, 3, -1, 1))
sketch6.addConstraint(Sketcher.Constraint("Symmetric", 0, 3, 7, 3, -1, 1))
sketch6.addConstraint(Sketcher.Constraint("Symmetric", 8, 3, 9, 3, -1, 1))
sketch6.addConstraint(Sketcher.Constraint("Symmetric", 1, 3, 2, 3, -2))
sketch6.addConstraint(Sketcher.Constraint("Symmetric", 0, 3, 3, 3, -2))
sketch6.addConstraint(Sketcher.Constraint("PointOnObject", 8, 3, -1))
sketch6.addConstraint(Sketcher.Constraint("Vertical", 4, 3, 8, 3))
sketch6.addConstraint(Sketcher.Constraint("Diameter", 0, 5.5))
sketch6.addConstraint(Sketcher.Constraint("DistanceX", 0, 3, -1, 1, 175.0))
sketch6.addConstraint(Sketcher.Constraint("DistanceY", -1, 1, 0, 3, 160.0))
sketch6.addConstraint(Sketcher.Constraint("DistanceY", -1, 1, 1, 3, 240.0))
sketch6.addConstraint(Sketcher.Constraint("DistanceX", 1, 3, 2, 3, 175.0))
doc.recompute()
hole3 = body3.newObject("PartDesign::Hole", "Hole002")
hole3.Profile = sketch6
hole3.ThreadType = "None"
hole3.Diameter = 5.5
hole3.DepthType = "Dimension"
hole3.Depth = 22.4
hole3.DrillPoint = "Angled"
hole3.DrillPointAngle = 118
hole3.Reversed = True
doc.recompute()

chamfer3 = body3.newObject("PartDesign::Chamfer", "Chamfer002")
chamfer3.Base = (hole3, edges_at(hole3, [
    (-185, -2.5, 250),
    (185, -2.5, 250),
    (185, -2.5, -250),
    (-185, -2.5, -250),
]))
chamfer3.Size = 5

doc.recompute()
